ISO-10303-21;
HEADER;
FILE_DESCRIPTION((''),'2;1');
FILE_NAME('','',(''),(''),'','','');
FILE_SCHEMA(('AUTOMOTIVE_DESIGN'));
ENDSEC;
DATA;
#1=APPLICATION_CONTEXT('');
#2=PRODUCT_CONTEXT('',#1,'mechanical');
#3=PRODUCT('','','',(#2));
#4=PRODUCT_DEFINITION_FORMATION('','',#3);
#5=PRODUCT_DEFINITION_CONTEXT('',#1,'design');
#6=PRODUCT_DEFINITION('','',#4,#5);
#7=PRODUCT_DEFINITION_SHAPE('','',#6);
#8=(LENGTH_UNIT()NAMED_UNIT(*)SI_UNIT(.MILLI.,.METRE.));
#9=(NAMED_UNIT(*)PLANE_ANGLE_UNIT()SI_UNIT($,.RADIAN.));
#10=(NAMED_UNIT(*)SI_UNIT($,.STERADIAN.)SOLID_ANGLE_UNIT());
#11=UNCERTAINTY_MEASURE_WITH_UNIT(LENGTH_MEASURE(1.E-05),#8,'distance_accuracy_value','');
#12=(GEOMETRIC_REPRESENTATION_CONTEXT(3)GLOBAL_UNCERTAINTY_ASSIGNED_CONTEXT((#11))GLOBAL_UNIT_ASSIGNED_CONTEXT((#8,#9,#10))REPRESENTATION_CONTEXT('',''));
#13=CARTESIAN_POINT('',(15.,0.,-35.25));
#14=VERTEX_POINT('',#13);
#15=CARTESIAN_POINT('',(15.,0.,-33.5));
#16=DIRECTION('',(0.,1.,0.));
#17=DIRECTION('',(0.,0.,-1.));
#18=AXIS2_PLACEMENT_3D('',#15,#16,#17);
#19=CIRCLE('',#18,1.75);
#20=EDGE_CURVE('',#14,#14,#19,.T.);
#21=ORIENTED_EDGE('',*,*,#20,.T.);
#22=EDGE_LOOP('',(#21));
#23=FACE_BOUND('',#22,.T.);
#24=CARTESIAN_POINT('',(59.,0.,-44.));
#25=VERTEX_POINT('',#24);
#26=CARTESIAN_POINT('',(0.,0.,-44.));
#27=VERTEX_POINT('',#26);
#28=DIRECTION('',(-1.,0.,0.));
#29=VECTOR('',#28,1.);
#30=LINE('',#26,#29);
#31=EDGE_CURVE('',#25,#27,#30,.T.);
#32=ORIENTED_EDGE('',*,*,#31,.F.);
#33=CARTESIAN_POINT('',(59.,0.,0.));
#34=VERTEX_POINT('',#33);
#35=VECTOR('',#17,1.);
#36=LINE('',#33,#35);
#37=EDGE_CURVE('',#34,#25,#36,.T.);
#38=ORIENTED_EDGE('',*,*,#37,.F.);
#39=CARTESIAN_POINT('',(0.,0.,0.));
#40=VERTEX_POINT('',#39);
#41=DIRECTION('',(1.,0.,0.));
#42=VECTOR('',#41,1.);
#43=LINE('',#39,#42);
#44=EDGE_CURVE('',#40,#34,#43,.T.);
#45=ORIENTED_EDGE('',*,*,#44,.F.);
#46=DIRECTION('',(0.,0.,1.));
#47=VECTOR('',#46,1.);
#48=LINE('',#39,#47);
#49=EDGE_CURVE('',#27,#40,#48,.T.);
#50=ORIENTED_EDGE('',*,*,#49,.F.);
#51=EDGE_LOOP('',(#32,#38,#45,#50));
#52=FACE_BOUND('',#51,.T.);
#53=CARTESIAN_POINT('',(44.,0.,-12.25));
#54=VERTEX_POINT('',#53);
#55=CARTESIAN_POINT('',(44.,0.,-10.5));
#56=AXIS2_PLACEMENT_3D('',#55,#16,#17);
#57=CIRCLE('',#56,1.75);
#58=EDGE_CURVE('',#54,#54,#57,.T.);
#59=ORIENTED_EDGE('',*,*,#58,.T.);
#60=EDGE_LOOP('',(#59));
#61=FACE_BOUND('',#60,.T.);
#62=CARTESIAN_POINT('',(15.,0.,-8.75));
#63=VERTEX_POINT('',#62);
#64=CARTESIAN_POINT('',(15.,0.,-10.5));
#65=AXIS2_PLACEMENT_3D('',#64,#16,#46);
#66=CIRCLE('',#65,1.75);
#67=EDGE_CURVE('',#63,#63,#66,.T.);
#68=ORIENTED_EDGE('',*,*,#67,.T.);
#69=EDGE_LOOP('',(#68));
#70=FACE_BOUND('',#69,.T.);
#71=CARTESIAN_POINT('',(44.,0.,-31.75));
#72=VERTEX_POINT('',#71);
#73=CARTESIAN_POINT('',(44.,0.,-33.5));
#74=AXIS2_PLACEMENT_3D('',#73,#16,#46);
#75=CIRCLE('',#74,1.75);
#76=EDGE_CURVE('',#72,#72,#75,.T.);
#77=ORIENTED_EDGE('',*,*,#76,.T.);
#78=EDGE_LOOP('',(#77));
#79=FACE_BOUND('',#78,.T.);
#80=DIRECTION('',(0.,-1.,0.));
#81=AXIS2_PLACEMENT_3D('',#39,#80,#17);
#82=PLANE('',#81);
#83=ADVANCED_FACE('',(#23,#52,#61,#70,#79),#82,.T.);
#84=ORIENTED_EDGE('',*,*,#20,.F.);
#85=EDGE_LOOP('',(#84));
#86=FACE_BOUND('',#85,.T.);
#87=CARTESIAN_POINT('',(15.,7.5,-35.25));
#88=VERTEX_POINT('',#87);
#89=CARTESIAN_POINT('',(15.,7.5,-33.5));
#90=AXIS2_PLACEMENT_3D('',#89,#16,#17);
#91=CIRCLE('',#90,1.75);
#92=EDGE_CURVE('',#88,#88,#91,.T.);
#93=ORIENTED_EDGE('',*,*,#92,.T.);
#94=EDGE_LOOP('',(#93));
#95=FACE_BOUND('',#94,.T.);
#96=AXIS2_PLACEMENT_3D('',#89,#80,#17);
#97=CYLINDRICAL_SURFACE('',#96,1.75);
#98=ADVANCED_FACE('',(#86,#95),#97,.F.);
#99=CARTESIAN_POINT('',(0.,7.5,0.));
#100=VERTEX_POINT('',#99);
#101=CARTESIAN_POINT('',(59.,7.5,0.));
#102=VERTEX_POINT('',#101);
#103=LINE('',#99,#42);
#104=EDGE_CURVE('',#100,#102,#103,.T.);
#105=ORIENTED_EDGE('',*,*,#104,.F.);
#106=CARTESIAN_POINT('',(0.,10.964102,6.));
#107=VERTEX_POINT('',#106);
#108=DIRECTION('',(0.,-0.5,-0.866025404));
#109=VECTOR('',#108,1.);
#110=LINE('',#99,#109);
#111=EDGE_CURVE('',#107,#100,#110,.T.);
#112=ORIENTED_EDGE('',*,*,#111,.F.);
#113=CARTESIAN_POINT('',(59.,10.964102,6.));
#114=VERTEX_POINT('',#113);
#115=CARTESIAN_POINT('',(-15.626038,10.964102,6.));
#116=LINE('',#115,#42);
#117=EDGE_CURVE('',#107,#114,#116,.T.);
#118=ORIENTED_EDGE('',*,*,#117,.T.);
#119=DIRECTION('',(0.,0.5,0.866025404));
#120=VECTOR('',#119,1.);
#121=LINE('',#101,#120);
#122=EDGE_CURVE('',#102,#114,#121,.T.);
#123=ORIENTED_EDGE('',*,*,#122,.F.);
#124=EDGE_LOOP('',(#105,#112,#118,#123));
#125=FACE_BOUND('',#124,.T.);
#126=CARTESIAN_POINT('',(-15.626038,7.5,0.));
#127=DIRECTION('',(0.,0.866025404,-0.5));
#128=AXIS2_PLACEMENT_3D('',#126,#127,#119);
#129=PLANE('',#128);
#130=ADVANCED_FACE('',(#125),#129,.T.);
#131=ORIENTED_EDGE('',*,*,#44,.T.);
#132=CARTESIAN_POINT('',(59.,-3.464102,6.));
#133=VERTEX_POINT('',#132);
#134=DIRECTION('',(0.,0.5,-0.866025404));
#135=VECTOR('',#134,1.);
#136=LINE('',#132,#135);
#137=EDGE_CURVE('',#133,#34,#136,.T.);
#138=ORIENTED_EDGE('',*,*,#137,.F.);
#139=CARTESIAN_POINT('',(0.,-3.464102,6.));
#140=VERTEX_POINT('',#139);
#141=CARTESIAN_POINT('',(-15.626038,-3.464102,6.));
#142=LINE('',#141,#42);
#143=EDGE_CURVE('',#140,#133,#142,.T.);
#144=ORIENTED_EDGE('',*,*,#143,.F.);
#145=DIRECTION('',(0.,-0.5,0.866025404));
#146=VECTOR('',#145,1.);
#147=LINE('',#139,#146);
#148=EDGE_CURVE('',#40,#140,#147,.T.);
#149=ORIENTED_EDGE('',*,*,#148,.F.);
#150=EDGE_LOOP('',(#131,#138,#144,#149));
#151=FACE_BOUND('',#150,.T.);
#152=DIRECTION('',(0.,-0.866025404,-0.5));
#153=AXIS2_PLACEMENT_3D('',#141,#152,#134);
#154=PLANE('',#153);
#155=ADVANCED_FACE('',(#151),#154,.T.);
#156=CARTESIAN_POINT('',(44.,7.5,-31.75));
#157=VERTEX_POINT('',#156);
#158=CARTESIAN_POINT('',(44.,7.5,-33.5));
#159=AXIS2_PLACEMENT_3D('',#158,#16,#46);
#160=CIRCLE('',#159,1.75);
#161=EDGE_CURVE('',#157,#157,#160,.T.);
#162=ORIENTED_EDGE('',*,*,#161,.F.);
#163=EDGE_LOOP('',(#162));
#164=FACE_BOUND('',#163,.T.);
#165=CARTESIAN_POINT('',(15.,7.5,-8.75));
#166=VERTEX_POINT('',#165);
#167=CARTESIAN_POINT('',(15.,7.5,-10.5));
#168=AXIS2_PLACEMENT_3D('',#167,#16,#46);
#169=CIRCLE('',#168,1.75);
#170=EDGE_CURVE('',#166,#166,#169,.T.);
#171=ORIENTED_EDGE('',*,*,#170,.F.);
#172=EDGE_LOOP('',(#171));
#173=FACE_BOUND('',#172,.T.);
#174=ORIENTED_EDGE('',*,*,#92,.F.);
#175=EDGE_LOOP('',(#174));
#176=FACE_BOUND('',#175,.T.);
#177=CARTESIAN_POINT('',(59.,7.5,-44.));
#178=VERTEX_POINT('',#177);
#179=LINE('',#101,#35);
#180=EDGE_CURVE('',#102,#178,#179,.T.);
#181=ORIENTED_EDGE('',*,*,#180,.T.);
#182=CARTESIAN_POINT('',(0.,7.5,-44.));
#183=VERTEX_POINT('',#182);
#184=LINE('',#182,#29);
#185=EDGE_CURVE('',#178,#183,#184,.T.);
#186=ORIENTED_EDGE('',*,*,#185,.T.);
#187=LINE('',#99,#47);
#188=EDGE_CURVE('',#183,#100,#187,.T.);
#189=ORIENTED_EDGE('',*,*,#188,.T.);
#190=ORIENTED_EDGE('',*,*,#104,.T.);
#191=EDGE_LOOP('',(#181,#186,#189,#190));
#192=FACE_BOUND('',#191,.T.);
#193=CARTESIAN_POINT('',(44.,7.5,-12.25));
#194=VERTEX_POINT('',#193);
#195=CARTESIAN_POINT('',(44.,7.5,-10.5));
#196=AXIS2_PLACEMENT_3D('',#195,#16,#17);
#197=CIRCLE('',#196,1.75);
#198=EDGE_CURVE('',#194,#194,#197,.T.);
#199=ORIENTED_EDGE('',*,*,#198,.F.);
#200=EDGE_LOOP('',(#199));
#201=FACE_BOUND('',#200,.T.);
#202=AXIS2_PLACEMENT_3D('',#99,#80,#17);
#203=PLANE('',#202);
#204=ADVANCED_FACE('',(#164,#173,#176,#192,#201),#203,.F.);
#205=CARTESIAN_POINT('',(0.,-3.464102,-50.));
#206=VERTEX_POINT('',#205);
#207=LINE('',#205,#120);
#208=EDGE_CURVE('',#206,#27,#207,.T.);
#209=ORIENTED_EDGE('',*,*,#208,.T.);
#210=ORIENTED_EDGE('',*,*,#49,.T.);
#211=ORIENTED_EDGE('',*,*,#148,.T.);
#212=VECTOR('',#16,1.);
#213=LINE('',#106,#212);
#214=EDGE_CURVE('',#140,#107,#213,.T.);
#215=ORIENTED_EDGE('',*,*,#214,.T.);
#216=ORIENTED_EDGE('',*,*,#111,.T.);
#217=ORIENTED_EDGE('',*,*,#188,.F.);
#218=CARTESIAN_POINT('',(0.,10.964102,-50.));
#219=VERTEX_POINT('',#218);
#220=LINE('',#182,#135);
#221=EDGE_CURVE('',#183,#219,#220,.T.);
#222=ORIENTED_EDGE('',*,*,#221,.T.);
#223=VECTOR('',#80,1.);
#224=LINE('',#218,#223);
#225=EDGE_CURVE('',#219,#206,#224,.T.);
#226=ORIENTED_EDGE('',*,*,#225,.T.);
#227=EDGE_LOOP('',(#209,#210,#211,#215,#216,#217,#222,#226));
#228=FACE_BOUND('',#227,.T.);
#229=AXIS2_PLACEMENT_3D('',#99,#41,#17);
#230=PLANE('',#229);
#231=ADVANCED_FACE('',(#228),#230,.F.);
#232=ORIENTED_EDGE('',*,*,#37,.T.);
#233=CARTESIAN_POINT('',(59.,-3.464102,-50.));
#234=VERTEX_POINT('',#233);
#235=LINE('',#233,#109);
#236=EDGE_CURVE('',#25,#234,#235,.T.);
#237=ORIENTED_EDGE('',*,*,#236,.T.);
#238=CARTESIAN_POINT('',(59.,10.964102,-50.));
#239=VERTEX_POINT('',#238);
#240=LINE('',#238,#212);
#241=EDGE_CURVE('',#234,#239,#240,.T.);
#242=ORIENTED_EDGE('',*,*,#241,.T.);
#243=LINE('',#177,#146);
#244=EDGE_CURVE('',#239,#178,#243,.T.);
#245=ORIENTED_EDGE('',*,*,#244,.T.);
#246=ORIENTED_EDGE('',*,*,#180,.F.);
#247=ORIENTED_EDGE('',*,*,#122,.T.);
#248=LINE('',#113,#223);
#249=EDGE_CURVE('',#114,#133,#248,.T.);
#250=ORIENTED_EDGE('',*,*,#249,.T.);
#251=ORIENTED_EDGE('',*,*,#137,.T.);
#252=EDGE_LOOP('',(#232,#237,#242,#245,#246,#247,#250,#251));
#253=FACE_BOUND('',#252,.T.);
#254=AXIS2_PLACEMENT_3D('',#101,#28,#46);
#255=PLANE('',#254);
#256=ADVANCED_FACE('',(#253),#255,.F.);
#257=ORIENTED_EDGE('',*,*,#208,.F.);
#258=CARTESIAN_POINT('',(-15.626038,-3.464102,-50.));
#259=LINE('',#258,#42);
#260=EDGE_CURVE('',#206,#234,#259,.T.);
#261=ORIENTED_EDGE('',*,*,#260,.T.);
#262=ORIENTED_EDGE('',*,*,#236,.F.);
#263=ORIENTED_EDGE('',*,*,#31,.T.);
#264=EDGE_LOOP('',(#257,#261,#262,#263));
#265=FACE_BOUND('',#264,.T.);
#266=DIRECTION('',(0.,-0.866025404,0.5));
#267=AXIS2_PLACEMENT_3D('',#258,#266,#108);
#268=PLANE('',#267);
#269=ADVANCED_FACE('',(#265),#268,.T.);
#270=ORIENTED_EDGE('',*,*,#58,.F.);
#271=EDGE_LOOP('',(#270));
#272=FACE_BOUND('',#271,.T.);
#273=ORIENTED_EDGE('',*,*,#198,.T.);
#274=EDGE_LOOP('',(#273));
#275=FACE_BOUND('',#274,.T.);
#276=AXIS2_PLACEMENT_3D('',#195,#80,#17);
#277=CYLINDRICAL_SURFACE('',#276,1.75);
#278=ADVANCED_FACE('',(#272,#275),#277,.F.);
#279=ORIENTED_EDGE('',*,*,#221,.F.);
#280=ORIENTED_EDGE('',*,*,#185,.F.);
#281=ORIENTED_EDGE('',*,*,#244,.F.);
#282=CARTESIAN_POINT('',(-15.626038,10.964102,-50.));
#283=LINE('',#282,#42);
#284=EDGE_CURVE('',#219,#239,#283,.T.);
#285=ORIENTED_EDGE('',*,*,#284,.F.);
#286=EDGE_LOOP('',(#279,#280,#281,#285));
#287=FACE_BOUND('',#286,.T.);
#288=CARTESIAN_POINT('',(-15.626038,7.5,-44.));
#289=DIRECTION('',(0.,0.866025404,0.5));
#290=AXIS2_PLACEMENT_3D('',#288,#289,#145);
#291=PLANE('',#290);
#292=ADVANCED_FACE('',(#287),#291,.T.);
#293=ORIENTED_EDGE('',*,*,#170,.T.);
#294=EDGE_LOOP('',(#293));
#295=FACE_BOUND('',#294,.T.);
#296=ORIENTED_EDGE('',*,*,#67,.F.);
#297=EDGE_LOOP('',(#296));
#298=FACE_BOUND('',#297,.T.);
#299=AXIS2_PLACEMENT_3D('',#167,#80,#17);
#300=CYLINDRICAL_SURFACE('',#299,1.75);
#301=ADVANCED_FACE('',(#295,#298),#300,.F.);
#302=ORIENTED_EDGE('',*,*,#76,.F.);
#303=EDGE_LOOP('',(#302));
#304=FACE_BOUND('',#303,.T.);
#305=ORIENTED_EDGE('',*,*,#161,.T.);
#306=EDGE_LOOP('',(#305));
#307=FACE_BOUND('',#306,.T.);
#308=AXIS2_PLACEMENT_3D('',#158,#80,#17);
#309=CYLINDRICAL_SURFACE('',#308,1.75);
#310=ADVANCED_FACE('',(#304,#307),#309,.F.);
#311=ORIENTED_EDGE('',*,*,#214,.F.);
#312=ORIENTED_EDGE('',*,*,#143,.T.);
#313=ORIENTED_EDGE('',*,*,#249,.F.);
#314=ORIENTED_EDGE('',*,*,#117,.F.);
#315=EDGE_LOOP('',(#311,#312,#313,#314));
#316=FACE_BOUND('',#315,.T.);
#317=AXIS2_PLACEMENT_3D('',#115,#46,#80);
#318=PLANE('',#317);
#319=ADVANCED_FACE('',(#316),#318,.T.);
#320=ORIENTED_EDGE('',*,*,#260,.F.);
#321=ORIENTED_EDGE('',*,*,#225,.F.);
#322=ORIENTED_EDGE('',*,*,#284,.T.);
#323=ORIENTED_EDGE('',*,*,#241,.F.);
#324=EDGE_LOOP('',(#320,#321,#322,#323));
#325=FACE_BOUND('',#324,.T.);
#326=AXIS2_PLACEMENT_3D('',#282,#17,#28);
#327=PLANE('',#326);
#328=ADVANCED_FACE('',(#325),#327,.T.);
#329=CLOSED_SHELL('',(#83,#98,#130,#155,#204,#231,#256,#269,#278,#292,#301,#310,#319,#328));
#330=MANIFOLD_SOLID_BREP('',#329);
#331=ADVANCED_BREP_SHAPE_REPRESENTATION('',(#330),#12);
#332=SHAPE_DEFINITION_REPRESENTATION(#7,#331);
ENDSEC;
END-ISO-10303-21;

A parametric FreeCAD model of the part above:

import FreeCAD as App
import Part
import Sketcher
from FreeCAD import Vector
Q = App.Units.Quantity

doc = App.newDocument("Part")
body = doc.addObject("PartDesign::Body", "Body")

sketch1 = body.newObject("Sketcher::SketchObject", "Sketch")
sketch1.AttachmentSupport = (doc.getObject("XZ_Plane"), [""])
sketch1.MapMode = "FlatFace"
sketch1.addGeometry([
    Part.LineSegment(Vector(0, -44, 0), Vector(0, 0, 0)),
    Part.LineSegment(Vector(0, 0, 0), Vector(59, 0, 0)),
    Part.LineSegment(Vector(59, 0, 0), Vector(59, -44, 0)),
    Part.LineSegment(Vector(59, -44, 0), Vector(0, -44, 0)),
    Part.Circle(Vector(15, -10.5, 0), Vector(0, 0, 1), 1.8),
    Part.Circle(Vector(44, -10.5, 0), Vector(0, 0, 1), 1.8),
    Part.Circle(Vector(15, -33.5, 0), Vector(0, 0, 1), 1.8),
    Part.Circle(Vector(44, -33.5, 0), Vector(0, 0, 1), 1.8),
], False)
sketch1.addConstraint([
    Sketcher.Constraint("Coincident", 0, 2, 1, 1),
    Sketcher.Constraint("Coincident", 1, 2, 2, 1),
    Sketcher.Constraint("Coincident", 2, 2, 3, 1),
    Sketcher.Constraint("Coincident", 3, 2, 0, 1),
    Sketcher.Constraint("Vertical", 0),
    Sketcher.Constraint("Horizontal", 1),
    Sketcher.Constraint("Vertical", 2),
    Sketcher.Constraint("Horizontal", 3),
    Sketcher.Constraint("Coincident", 0, 2, -1, 1),
    Sketcher.Constraint("Equal", 4, 5),
    Sketcher.Constraint("Equal", 5, 6),
    Sketcher.Constraint("Equal", 6, 7),
    Sketcher.Constraint("Horizontal", 4, 3, 5, 3),
    Sketcher.Constraint("Horizontal", 6, 3, 7, 3),
    Sketcher.Constraint("Vertical", 4, 3, 6, 3),
    Sketcher.Constraint("Vertical", 5, 3, 7, 3),
    Sketcher.Constraint("Diameter", 4, 3.5),
    Sketcher.Constraint("DistanceX", 1, 1, 1, 2, 59.0),
    Sketcher.Constraint("DistanceY", 0, 1, 0, 2, 44.0),
    Sketcher.Constraint("DistanceX", -1, 1, 4, 3, 15.0),
    Sketcher.Constraint("DistanceX", -1, 1, 5, 3, 44.0),
    Sketcher.Constraint("DistanceY", 6, 3, 4, 3, 23.0),
    Sketcher.Constraint("DistanceY", 4, 3, -1, 1, 10.5),
])
pad1 = body.newObject("PartDesign::Pad", "Pad")
pad1.Profile = sketch1
pad1.Length = 7.5
pad1.Reversed = True

sketch2 = body.newObject("Sketcher::SketchObject", "Sketch001")
sketch2.AttachmentSupport = (doc.getObject("YZ_Plane"), [""])
sketch2.MapMode = "FlatFace"
sketch2.AttachmentOffset = App.Placement(Vector(0, 0, 59), App.Rotation())
sketch2.addGeometry([
    Part.LineSegment(Vector(8, 0, 0), Vector(11, 6, 0)),
    Part.LineSegment(Vector(11, 6, 0), Vector(-3, 6, 0)),
    Part.LineSegment(Vector(-3, 6, 0), Vector(0, 0, 0)),
    Part.LineSegment(Vector(0, 0, 0), Vector(8, 0, 0)),
    Part.LineSegment(Vector(11, -50, 0), Vector(8, -44, 0)),
    Part.LineSegment(Vector(8, -44, 0), Vector(0, -44, 0)),
    Part.LineSegment(Vector(0, -44, 0), Vector(-3, -50, 0)),
    Part.LineSegment(Vector(-3, -50, 0), Vector(11, -50, 0)),
], False)
sketch2.addConstraint([
    Sketcher.Constraint("Coincident", 0, 2, 1, 1),
    Sketcher.Constraint("Coincident", 1, 2, 2, 1),
    Sketcher.Constraint("Coincident", 2, 2, 3, 1),
    Sketcher.Constraint("Coincident", 3, 2, 0, 1),
    Sketcher.Constraint("Coincident", 4, 2, 5, 1),
    Sketcher.Constraint("Coincident", 5, 2, 6, 1),
    Sketcher.Constraint("Coincident", 6, 2, 7, 1),
    Sketcher.Constraint("Coincident", 7, 2, 4, 1),
    Sketcher.Constraint("Horizontal", 1),
    Sketcher.Constraint("Horizontal", 3),
    Sketcher.Constraint("Horizontal", 5),
    Sketcher.Constraint("Horizontal", 7),
    Sketcher.Constraint("Coincident", 2, 2, -1, 1),
    Sketcher.Constraint("PointOnObject", 5, 2, -2),
    Sketcher.Constraint("Parallel", 2, 4),
    Sketcher.Constraint("Parallel", 0, 6),
    Sketcher.Constraint("Vertical", 3, 2, 4, 2),
    Sketcher.Constraint("Vertical", 1, 2, 6, 2),
    Sketcher.Constraint("Vertical", 0, 2, 7, 2),
    Sketcher.Constraint("Angle", 0, Q("60 deg")),
    Sketcher.Constraint("DistanceX", 3, 1, 3, 2, 7.5),
    Sketcher.Constraint("DistanceY", -1, 1, 0, 2, 6.0),
    Sketcher.Constraint("DistanceY", 4, 2, -1, 1, 44.0),
])
pad2 = body.newObject("PartDesign::Pad", "Pad001")
pad2.Profile = sketch2
pad2.Length = 59
pad2.Reversed = True

doc.recompute()
